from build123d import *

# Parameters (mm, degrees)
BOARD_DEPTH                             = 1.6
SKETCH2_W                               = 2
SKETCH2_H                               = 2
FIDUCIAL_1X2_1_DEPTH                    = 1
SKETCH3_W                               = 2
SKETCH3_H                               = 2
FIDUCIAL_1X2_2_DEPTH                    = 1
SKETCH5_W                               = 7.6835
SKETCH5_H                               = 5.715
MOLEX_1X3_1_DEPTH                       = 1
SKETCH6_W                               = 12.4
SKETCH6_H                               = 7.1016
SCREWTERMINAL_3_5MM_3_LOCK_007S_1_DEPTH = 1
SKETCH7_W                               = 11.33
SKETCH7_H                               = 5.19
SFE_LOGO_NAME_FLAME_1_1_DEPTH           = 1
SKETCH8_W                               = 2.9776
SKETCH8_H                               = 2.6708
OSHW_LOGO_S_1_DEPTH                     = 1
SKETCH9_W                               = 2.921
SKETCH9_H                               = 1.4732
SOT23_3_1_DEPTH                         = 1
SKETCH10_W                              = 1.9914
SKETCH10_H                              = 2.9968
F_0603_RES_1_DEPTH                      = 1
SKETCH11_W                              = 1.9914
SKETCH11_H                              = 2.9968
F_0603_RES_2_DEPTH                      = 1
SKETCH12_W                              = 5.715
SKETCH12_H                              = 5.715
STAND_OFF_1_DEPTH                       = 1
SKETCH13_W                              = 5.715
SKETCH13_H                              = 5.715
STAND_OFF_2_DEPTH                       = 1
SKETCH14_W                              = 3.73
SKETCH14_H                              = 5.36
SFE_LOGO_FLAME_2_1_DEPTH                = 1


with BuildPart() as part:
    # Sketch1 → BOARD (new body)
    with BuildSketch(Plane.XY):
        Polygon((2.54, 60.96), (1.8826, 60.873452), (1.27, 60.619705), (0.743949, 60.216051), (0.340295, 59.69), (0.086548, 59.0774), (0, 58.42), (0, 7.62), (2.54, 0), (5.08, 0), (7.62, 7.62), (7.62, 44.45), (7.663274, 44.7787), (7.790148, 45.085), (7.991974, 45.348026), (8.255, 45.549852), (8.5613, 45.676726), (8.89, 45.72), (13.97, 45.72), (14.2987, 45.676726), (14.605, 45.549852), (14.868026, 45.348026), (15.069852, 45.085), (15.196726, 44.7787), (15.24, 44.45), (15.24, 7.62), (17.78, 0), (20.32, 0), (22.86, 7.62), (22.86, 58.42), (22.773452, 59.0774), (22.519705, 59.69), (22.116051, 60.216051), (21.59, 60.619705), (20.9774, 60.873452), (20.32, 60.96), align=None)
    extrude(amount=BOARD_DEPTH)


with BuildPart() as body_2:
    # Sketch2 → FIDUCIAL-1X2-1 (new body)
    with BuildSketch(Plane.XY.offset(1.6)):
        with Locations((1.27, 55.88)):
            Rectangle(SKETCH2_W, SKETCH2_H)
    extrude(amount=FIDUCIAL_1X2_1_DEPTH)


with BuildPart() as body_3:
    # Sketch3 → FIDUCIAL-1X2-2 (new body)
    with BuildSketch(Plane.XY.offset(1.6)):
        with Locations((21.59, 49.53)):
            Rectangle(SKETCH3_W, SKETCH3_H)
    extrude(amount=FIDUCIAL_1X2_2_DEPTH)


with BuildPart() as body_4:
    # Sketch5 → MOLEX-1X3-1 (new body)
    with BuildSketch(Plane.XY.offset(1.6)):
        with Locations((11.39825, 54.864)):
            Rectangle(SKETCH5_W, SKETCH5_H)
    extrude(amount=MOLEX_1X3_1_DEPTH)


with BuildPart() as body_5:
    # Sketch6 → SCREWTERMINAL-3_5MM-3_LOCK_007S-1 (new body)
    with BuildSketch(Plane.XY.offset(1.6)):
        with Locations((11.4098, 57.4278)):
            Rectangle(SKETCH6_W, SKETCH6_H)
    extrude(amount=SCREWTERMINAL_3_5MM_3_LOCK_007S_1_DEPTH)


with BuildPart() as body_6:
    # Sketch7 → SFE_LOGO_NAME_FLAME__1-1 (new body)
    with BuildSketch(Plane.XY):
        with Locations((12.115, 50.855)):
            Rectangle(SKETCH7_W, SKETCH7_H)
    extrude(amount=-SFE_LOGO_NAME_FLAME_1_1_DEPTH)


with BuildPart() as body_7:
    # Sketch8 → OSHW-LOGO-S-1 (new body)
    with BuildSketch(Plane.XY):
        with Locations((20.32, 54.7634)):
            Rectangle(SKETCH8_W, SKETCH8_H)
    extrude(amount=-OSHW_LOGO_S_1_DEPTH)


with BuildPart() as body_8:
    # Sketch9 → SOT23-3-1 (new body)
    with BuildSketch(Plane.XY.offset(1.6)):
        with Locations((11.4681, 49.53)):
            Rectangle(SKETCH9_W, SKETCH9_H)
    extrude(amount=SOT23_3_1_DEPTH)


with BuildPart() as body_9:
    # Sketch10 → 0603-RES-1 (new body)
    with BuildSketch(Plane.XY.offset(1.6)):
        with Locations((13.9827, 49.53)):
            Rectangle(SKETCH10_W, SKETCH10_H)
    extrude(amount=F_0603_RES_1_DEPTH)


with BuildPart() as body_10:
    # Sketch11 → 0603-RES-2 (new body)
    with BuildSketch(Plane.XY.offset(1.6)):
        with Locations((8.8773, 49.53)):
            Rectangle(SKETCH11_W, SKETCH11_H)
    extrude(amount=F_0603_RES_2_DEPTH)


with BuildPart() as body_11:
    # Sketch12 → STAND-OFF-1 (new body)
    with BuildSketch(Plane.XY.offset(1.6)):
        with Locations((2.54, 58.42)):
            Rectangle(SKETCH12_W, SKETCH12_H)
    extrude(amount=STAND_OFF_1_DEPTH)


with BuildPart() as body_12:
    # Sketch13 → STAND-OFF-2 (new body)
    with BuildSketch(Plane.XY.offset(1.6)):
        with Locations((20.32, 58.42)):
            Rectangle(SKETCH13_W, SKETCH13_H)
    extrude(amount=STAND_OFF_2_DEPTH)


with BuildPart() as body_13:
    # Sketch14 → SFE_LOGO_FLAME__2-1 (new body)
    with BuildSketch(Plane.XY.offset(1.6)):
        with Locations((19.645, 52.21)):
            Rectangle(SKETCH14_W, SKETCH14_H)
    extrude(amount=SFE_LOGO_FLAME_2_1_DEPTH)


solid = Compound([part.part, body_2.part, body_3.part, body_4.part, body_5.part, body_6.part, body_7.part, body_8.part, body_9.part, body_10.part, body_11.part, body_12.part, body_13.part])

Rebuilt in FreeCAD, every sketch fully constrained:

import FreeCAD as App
import Part
import Sketcher
Q = App.Units.Quantity

doc = App.newDocument("Part")
params = doc.addObject("Spreadsheet::Sheet", "Params")
for row, (alias, value) in enumerate([
    ("sketch1_height", "2 in"),
    ("sketch1_height2", "2 in"),
    ("sketch1_width", "0.1 in"),
    ("sketch1_width2", "0.2 in"),
    ("sketch1_width3", "0.1 in"),
    ("pad1_length", "1.6 mm"),
    ("pad2_length", "1 mm"),
    ("pad3_length", "1 mm"),
    ("sketch4_height", "0.225 in"),
    ("pad4_length", "1 mm"),
    ("pad5_length", "1 mm"),
    ("pad6_length", "1 mm"),
    ("pad7_length", "1 mm"),
    ("sketch8_width", "0.115 in"),
    ("sketch8_height", "0.058 in"),
    ("pad8_length", "1 mm"),
    ("pad9_length", "1 mm"),
    ("pad10_length", "1 mm"),
    ("sketch11_width", "0.225 in"),
    ("pad11_length", "1 mm"),
    ("sketch12_width", "0.225 in"),
    ("pad12_length", "1 mm"),
    ("pad13_length", "1 mm"),
], start=1):
    params.set(f"A{row}", alias)
    params.set(f"B{row}", "=" + value)
    params.setAlias(f"B{row}", alias)

body = doc.addObject("PartDesign::Body", "Body")

sketch1 = body.newObject("Sketcher::SketchObject", "Sketch")
sketch1.AttachmentSupport = (doc.getObject("XY_Plane"), [""])
sketch1.MapMode = "FlatFace"
sketch1.addGeometry(Part.LineSegment(App.Vector(2.54, 60.96, 0), App.Vector(1.8826, 60.873452, 0)), False)
sketch1.addGeometry(Part.LineSegment(App.Vector(1.8826, 60.873452, 0), App.Vector(1.27, 60.619705, 0)), False)
sketch1.addGeometry(Part.LineSegment(App.Vector(1.27, 60.619705, 0), App.Vector(0.743949, 60.216051, 0)), False)
sketch1.addGeometry(Part.LineSegment(App.Vector(0.743949, 60.216051, 0), App.Vector(0.340295, 59.69, 0)), False)
sketch1.addGeometry(Part.LineSegment(App.Vector(0.340295, 59.69, 0), App.Vector(0.086548, 59.0774, 0)), False)
sketch1.addGeometry(Part.LineSegment(App.Vector(0.086548, 59.0774, 0), App.Vector(0, 58.42, 0)), False)
sketch1.addGeometry(Part.LineSegment(App.Vector(0, 58.42, 0), App.Vector(0, 7.62, 0)), False)
sketch1.addGeometry(Part.LineSegment(App.Vector(0, 7.62, 0), App.Vector(2.54, 0, 0)), False)
sketch1.addGeometry(Part.LineSegment(App.Vector(2.54, 0, 0), App.Vector(5.08, 0, 0)), False)
sketch1.addGeometry(Part.LineSegment(App.Vector(5.08, 0, 0), App.Vector(7.62, 7.62, 0)), False)
sketch1.addGeometry(Part.LineSegment(App.Vector(7.62, 7.62, 0), App.Vector(7.62, 44.45, 0)), False)
sketch1.addGeometry(Part.LineSegment(App.Vector(7.62, 44.45, 0), App.Vector(7.663274, 44.7787, 0)), False)
sketch1.addGeometry(Part.LineSegment(App.Vector(7.663274, 44.7787, 0), App.Vector(7.790148, 45.085, 0)), False)
sketch1.addGeometry(Part.LineSegment(App.Vector(7.790148, 45.085, 0), App.Vector(7.991974, 45.348026, 0)), False)
sketch1.addGeometry(Part.LineSegment(App.Vector(7.991974, 45.348026, 0), App.Vector(8.255, 45.549852, 0)), False)
sketch1.addGeometry(Part.LineSegment(App.Vector(8.255, 45.549852, 0), App.Vector(8.5613, 45.676726, 0)), False)
sketch1.addGeometry(Part.LineSegment(App.Vector(8.5613, 45.676726, 0), App.Vector(8.89, 45.72, 0)), False)
sketch1.addGeometry(Part.LineSegment(App.Vector(8.89, 45.72, 0), App.Vector(13.97, 45.72, 0)), False)
sketch1.addGeometry(Part.LineSegment(App.Vector(13.97, 45.72, 0), App.Vector(14.2987, 45.676726, 0)), False)
sketch1.addGeometry(Part.LineSegment(App.Vector(14.2987, 45.676726, 0), App.Vector(14.605, 45.549852, 0)), False)
sketch1.addGeometry(Part.LineSegment(App.Vector(14.605, 45.549852, 0), App.Vector(14.868026, 45.348026, 0)), False)
sketch1.addGeometry(Part.LineSegment(App.Vector(14.868026, 45.348026, 0), App.Vector(15.069852, 45.085, 0)), False)
sketch1.addGeometry(Part.LineSegment(App.Vector(15.069852, 45.085, 0), App.Vector(15.196726, 44.7787, 0)), False)
sketch1.addGeometry(Part.LineSegment(App.Vector(15.196726, 44.7787, 0), App.Vector(15.24, 44.45, 0)), False)
sketch1.addGeometry(Part.LineSegment(App.Vector(15.24, 44.45, 0), App.Vector(15.24, 7.62, 0)), False)
sketch1.addGeometry(Part.LineSegment(App.Vector(15.24, 7.62, 0), App.Vector(17.78, 0, 0)), False)
sketch1.addGeometry(Part.LineSegment(App.Vector(17.78, 0, 0), App.Vector(20.32, 0, 0)), False)
sketch1.addGeometry(Part.LineSegment(App.Vector(20.32, 0, 0), App.Vector(22.86, 7.62, 0)), False)
sketch1.addGeometry(Part.LineSegment(App.Vector(22.86, 7.62, 0), App.Vector(22.86, 58.42, 0)), False)
sketch1.addGeometry(Part.LineSegment(App.Vector(22.86, 58.42, 0), App.Vector(22.773452, 59.0774, 0)), False)
sketch1.addGeometry(Part.LineSegment(App.Vector(22.773452, 59.0774, 0), App.Vector(22.519705, 59.69, 0)), False)
sketch1.addGeometry(Part.LineSegment(App.Vector(22.519705, 59.69, 0), App.Vector(22.116051, 60.216051, 0)), False)
sketch1.addGeometry(Part.LineSegment(App.Vector(22.116051, 60.216051, 0), App.Vector(21.59, 60.619705, 0)), False)
sketch1.addGeometry(Part.LineSegment(App.Vector(21.59, 60.619705, 0), App.Vector(20.9774, 60.873452, 0)), False)
sketch1.addGeometry(Part.LineSegment(App.Vector(20.9774, 60.873452, 0), App.Vector(20.32, 60.96, 0)), False)
sketch1.addGeometry(Part.LineSegment(App.Vector(20.32, 60.96, 0), App.Vector(2.54, 60.96, 0)), False)
sketch1.addConstraint(Sketcher.Constraint("Coincident", 0, 2, 1, 1))
sketch1.addConstraint(Sketcher.Constraint("Coincident", 1, 2, 2, 1))
sketch1.addConstraint(Sketcher.Constraint("Coincident", 2, 2, 3, 1))
sketch1.addConstraint(Sketcher.Constraint("Coincident", 3, 2, 4, 1))
sketch1.addConstraint(Sketcher.Constraint("Coincident", 4, 2, 5, 1))
sketch1.addConstraint(Sketcher.Constraint("Coincident", 5, 2, 6, 1))
sketch1.addConstraint(Sketcher.Constraint("Coincident", 6, 2, 7, 1))
sketch1.addConstraint(Sketcher.Constraint("Coincident", 7, 2, 8, 1))
sketch1.addConstraint(Sketcher.Constraint("Coincident", 8, 2, 9, 1))
sketch1.addConstraint(Sketcher.Constraint("Coincident", 9, 2, 10, 1))
sketch1.addConstraint(Sketcher.Constraint("Coincident", 10, 2, 11, 1))
sketch1.addConstraint(Sketcher.Constraint("Coincident", 11, 2, 12, 1))
sketch1.addConstraint(Sketcher.Constraint("Coincident", 12, 2, 13, 1))
sketch1.addConstraint(Sketcher.Constraint("Coincident", 13, 2, 14, 1))
sketch1.addConstraint(Sketcher.Constraint("Coincident", 14, 2, 15, 1))
sketch1.addConstraint(Sketcher.Constraint("Coincident", 15, 2, 16, 1))
sketch1.addConstraint(Sketcher.Constraint("Coincident", 16, 2, 17, 1))
sketch1.addConstraint(Sketcher.Constraint("Coincident", 17, 2, 18, 1))
sketch1.addConstraint(Sketcher.Constraint("Coincident", 18, 2, 19, 1))
sketch1.addConstraint(Sketcher.Constraint("Coincident", 19, 2, 20, 1))
sketch1.addConstraint(Sketcher.Constraint("Coincident", 20, 2, 21, 1))
sketch1.addConstraint(Sketcher.Constraint("Coincident", 21, 2, 22, 1))
sketch1.addConstraint(Sketcher.Constraint("Coincident", 22, 2, 23, 1))
sketch1.addConstraint(Sketcher.Constraint("Coincident", 23, 2, 24, 1))
sketch1.addConstraint(Sketcher.Constraint("Coincident", 24, 2, 25, 1))
sketch1.addConstraint(Sketcher.Constraint("Coincident", 25, 2, 26, 1))
sketch1.addConstraint(Sketcher.Constraint("Coincident", 26, 2, 27, 1))
sketch1.addConstraint(Sketcher.Constraint("Coincident", 27, 2, 28, 1))
sketch1.addConstraint(Sketcher.Constraint("Coincident", 28, 2, 29, 1))
sketch1.addConstraint(Sketcher.Constraint("Coincident", 29, 2, 30, 1))
sketch1.addConstraint(Sketcher.Constraint("Coincident", 30, 2, 31, 1))
sketch1.addConstraint(Sketcher.Constraint("Coincident", 31, 2, 32, 1))
sketch1.addConstraint(Sketcher.Constraint("Coincident", 32, 2, 33, 1))
sketch1.addConstraint(Sketcher.Constraint("Coincident", 33, 2, 34, 1))
sketch1.addConstraint(Sketcher.Constraint("Coincident", 34, 2, 35, 1))
sketch1.addConstraint(Sketcher.Constraint("Coincident", 35, 2, 0, 1))
sketch1.addConstraint(Sketcher.Constraint("Vertical", 6))
sketch1.addConstraint(Sketcher.Constraint("Horizontal", 8))
sketch1.addConstraint(Sketcher.Constraint("Vertical", 10))
sketch1.addConstraint(Sketcher.Constraint("Horizontal", 17))
sketch1.addConstraint(Sketcher.Constraint("Vertical", 24))
sketch1.addConstraint(Sketcher.Constraint("Horizontal", 26))
sketch1.addConstraint(Sketcher.Constraint("Vertical", 28))
sketch1.addConstraint(Sketcher.Constraint("Horizontal", 35))
sketch1.addConstraint(Sketcher.Constraint("PointOnObject", 5, 2, -2))
sketch1.addConstraint(Sketcher.Constraint("PointOnObject", 7, 2, -1))
sketch1.addConstraint(Sketcher.Constraint("PointOnObject", 25, 2, -1))
sketch1.addConstraint(Sketcher.Constraint("DistanceY", 6, 2, 6, 1, Q("2 in")))
sketch1.addConstraint(Sketcher.Constraint("DistanceY", 28, 1, 28, 2, Q("2 in")))
sketch1.addConstraint(Sketcher.Constraint("DistanceX", 8, 1, 8, 2, Q("0.1 in")))
sketch1.addConstraint(Sketcher.Constraint("DistanceX", 17, 1, 17, 2, Q("0.2 in")))
sketch1.addConstraint(Sketcher.Constraint("DistanceX", 26, 1, 26, 2, Q("0.1 in")))
sketch1.addConstraint(Sketcher.Constraint("DistanceX", 35, 2, 35, 1, Q("0.7 in")))
sketch1.addConstraint(Sketcher.Constraint("DistanceY", 9, 2, 5, 2, Q("2 in")))
sketch1.addConstraint(Sketcher.Constraint("DistanceY", 10, 1, 10, 2, Q("1.45 in")))
sketch1.addConstraint(Sketcher.Constraint("DistanceY", 24, 2, 24, 1, Q("1.45 in")))
sketch1.addConstraint(Sketcher.Constraint("DistanceY", -1, 1, 5, 2, Q("2.3 in")))
sketch1.addConstraint(Sketcher.Constraint("DistanceX", -1, 1, 7, 2, Q("0.1 in")))
sketch1.addConstraint(Sketcher.Constraint("DistanceX", -1, 1, 9, 2, Q("0.3 in")))
sketch1.addConstraint(Sketcher.Constraint("DistanceY", -1, 1, 16, 2, Q("1.8 in")))
sketch1.addConstraint(Sketcher.Constraint("DistanceX", -1, 1, 23, 2, Q("0.6 in")))
sketch1.addConstraint(Sketcher.Constraint("DistanceY", -1, 1, 24, 2, Q("0.3 in")))
sketch1.addConstraint(Sketcher.Constraint("DistanceX", -1, 1, 25, 2, Q("0.7 in")))
sketch1.addConstraint(Sketcher.Constraint("DistanceX", -1, 1, 27, 2, Q("0.9 in")))
sketch1.addConstraint(Sketcher.Constraint("DistanceY", -1, 1, 27, 2, Q("0.3 in")))
sketch1.addConstraint(Sketcher.Constraint("DistanceX", -1, 1, 34, 2, Q("0.8 in")))
sketch1.addConstraint(Sketcher.Constraint("DistanceY", -1, 1, 34, 2, Q("2.4 in")))
sketch1.addConstraint(Sketcher.Constraint("DistanceY", 10, 2, 3, 2, Q("0.6 in")))
sketch1.addConstraint(Sketcher.Constraint("DistanceX", -1, 1, 1, 2, Q("0.05 in")))
sketch1.addConstraint(Sketcher.Constraint("DistanceX", -1, 1, 16, 2, Q("0.35 in")))
sketch1.addConstraint(Sketcher.Constraint("DistanceY", -1, 1, 30, 2, Q("2.35 in")))
sketch1.addConstraint(Sketcher.Constraint("DistanceX", -1, 1, 32, 2, Q("0.85 in")))
sketch1.addConstraint(Sketcher.Constraint("DistanceX", 14, 2, 19, 2, Q("0.25 in")))
sketch1.addConstraint(Sketcher.Constraint("DistanceY", -1, 1, 12, 2, Q("1.775 in")))
sketch1.addConstraint(Sketcher.Constraint("DistanceX", -1, 1, 14, 2, Q("0.325 in")))
sketch1.addConstraint(Sketcher.Constraint("DistanceY", -1, 1, 21, 2, Q("1.775 in")))
sketch1.addConstraint(Sketcher.Constraint("DistanceX", -1, 1, 0, 2, 1.8826))
sketch1.addConstraint(Sketcher.Constraint("DistanceY", -1, 1, 4, 2, 59.0774))
sketch1.addConstraint(Sketcher.Constraint("DistanceY", -1, 1, 11, 2, 44.7787))
sketch1.addConstraint(Sketcher.Constraint("DistanceX", -1, 1, 15, 2, 8.5613))
sketch1.addConstraint(Sketcher.Constraint("DistanceX", -1, 1, 18, 2, 14.2987))
sketch1.addConstraint(Sketcher.Constraint("DistanceY", -1, 1, 22, 2, 44.7787))
sketch1.addConstraint(Sketcher.Constraint("DistanceY", -1, 1, 29, 2, 59.0774))
sketch1.addConstraint(Sketcher.Constraint("DistanceX", -1, 1, 33, 2, 20.9774))
sketch1.addConstraint(Sketcher.Constraint("DistanceY", 2, 2, 0, 2, 0.657401))
sketch1.addConstraint(Sketcher.Constraint("DistanceX", 4, 2, 2, 2, 0.657401))
sketch1.addConstraint(Sketcher.Constraint("DistanceX", 4, 2, 12, 2, 7.7036))
sketch1.addConstraint(Sketcher.Constraint("DistanceX", 11, 2, 13, 2, 0.3287))
sketch1.addConstraint(Sketcher.Constraint("DistanceY", 13, 2, 15, 2, 0.3287))
sketch1.addConstraint(Sketcher.Constraint("DistanceY", 13, 2, 18, 2, 0.3287))
sketch1.addConstraint(Sketcher.Constraint("DistanceY", 20, 2, 18, 2, 0.3287))
sketch1.addConstraint(Sketcher.Constraint("DistanceX", 20, 2, 22, 2, 0.3287))
sketch1.addConstraint(Sketcher.Constraint("DistanceX", 21, 2, 29, 2, 7.7036))
sketch1.addConstraint(Sketcher.Constraint("DistanceX", 31, 2, 29, 2, 0.657401))
sketch1.addConstraint(Sketcher.Constraint("DistanceY", 19, 2, 31, 2, 14.666199))
sketch1.addConstraint(Sketcher.Constraint("DistanceY", 31, 2, 33, 2, 0.657401))
sketch1.addConstraint(Sketcher.Constraint("DistanceX", -1, 1, 2, 2, 0.743949))
sketch1.addConstraint(Sketcher.Constraint("DistanceY", -1, 1, 2, 2, 60.216051))
sketch1.addConstraint(Sketcher.Constraint("DistanceX", -1, 1, 21, 2, 15.069852))
sketch1.addConstraint(Sketcher.Constraint("DistanceY", -1, 1, 31, 2, 60.216051))
sketch1.addConstraint(Sketcher.Constraint("DistanceX", 3, 2, 11, 2, 7.322979))
sketch1.addConstraint(Sketcher.Constraint("DistanceY", 10, 2, 14, 2, 1.099852))
sketch1.addConstraint(Sketcher.Constraint("DistanceX", 20, 2, 30, 2, 7.651679))
sketch1.addConstraint(Sketcher.Constraint("Distance", 1, 0.663073))
sketch1.addConstraint(Sketcher.Constraint("Distance", 3, 0.663073))
sketch1.addConstraint(Sketcher.Constraint("Distance", 13, 0.331536))
sketch1.addConstraint(Sketcher.Constraint("Distance", 20, 0.331536))
sketch1.addConstraint(Sketcher.Constraint("Distance", 32, 0.663073))
sketch1.setExpression("Constraints[47]", "Params.sketch1_height")
sketch1.setExpression("Constraints[48]", "Params.sketch1_height2")
sketch1.setExpression("Constraints[49]", "Params.sketch1_width")
sketch1.setExpression("Constraints[50]", "Params.sketch1_width2")
sketch1.setExpression("Constraints[51]", "Params.sketch1_width3")
pad1 = body.newObject("PartDesign::Pad", "Pad")
pad1.Profile = sketch1
pad1.setExpression("Length", "Params.pad1_length")
body2 = doc.addObject("PartDesign::Body", "Body001")

sketch2 = body2.newObject("Sketcher::SketchObject", "Sketch001")
sketch2.AttachmentSupport = (doc.getObject("XY_Plane001"), [""])
sketch2.MapMode = "FlatFace"
sketch2.AttachmentOffset = App.Placement(App.Vector(0, 0, 1.6), App.Rotation())
sketch2.addGeometry(Part.LineSegment(App.Vector(0.3, 56.9, 0), App.Vector(0.3, 54.9, 0)), False)
sketch2.addGeometry(Part.LineSegment(App.Vector(0.3, 54.9, 0), App.Vector(2.3, 54.9, 0)), False)
sketch2.addGeometry(Part.LineSegment(App.Vector(2.3, 54.9, 0), App.Vector(2.3, 56.9, 0)), False)
sketch2.addGeometry(Part.LineSegment(App.Vector(2.3, 56.9, 0), App.Vector(0.3, 56.9, 0)), False)
sketch2.addConstraint(Sketcher.Constraint("Coincident", 0, 2, 1, 1))
sketch2.addConstraint(Sketcher.Constraint("Coincident", 1, 2, 2, 1))
sketch2.addConstraint(Sketcher.Constraint("Coincident", 2, 2, 3, 1))
sketch2.addConstraint(Sketcher.Constraint("Coincident", 3, 2, 0, 1))
sketch2.addConstraint(Sketcher.Constraint("Vertical", 0))
sketch2.addConstraint(Sketcher.Constraint("Horizontal", 1))
sketch2.addConstraint(Sketcher.Constraint("Vertical", 2))
sketch2.addConstraint(Sketcher.Constraint("Horizontal", 3))
sketch2.addConstraint(Sketcher.Constraint("Equal", 3, 0))
sketch2.addConstraint(Sketcher.Constraint("DistanceX", 1, 1, 1, 2, 2.0))
sketch2.addConstraint(Sketcher.Constraint("DistanceX", -1, 1, 0, 2, 0.27))
sketch2.addConstraint(Sketcher.Constraint("DistanceY", -1, 1, 0, 2, 54.88))
pad2 = body2.newObject("PartDesign::Pad", "Pad001")
pad2.Profile = sketch2
pad2.setExpression("Length", "Params.pad2_length")
body3 = doc.addObject("PartDesign::Body", "Body002")

sketch3 = body3.newObject("Sketcher::SketchObject", "Sketch002")
sketch3.AttachmentSupport = (doc.getObject("XY_Plane002"), [""])
sketch3.MapMode = "FlatFace"
sketch3.AttachmentOffset = App.Placement(App.Vector(0, 0, 1.6), App.Rotation())
sketch3.addGeometry(Part.LineSegment(App.Vector(20.6, 50.5, 0), App.Vector(20.6, 48.5, 0)), False)
sketch3.addGeometry(Part.LineSegment(App.Vector(20.6, 48.5, 0), App.Vector(22.6, 48.5, 0)), False)
sketch3.addGeometry(Part.LineSegment(App.Vector(22.6, 48.5, 0), App.Vector(22.6, 50.5, 0)), False)
sketch3.addGeometry(Part.LineSegment(App.Vector(22.6, 50.5, 0), App.Vector(20.6, 50.5, 0)), False)
sketch3.addConstraint(Sketcher.Constraint("Coincident", 0, 2, 1, 1))
sketch3.addConstraint(Sketcher.Constraint("Coincident", 1, 2, 2, 1))
sketch3.addConstraint(Sketcher.Constraint("Coincident", 2, 2, 3, 1))
sketch3.addConstraint(Sketcher.Constraint("Coincident", 3, 2, 0, 1))
sketch3.addConstraint(Sketcher.Constraint("Vertical", 0))
sketch3.addConstraint(Sketcher.Constraint("Horizontal", 1))
sketch3.addConstraint(Sketcher.Constraint("Vertical", 2))
sketch3.addConstraint(Sketcher.Constraint("Horizontal", 3))
sketch3.addConstraint(Sketcher.Constraint("Equal", 3, 0))
sketch3.addConstraint(Sketcher.Constraint("DistanceX", 1, 1, 1, 2, 2.0))
sketch3.addConstraint(Sketcher.Constraint("DistanceX", -1, 1, 0, 2, 20.59))
sketch3.addConstraint(Sketcher.Constraint("DistanceY", -1, 1, 0, 2, 48.53))
pad3 = body3.newObject("PartDesign::Pad", "Pad002")
pad3.Profile = sketch3
pad3.setExpression("Length", "Params.pad3_length")
body4 = doc.addObject("PartDesign::Body", "Body003")

sketch4 = body4.newObject("Sketcher::SketchObject", "Sketch003")
sketch4.AttachmentSupport = (doc.getObject("XY_Plane003"), [""])
sketch4.MapMode = "FlatFace"
sketch4.AttachmentOffset = App.Placement(App.Vector(0, 0, 1.6), App.Rotation())
sketch4.addGeometry(Part.LineSegment(App.Vector(8, 58, 0), App.Vector(8, 52, 0)), False)
sketch4.addGeometry(Part.LineSegment(App.Vector(8, 52, 0), App.Vector(15, 52, 0)), False)
sketch4.addGeometry(Part.LineSegment(App.Vector(15, 52, 0), App.Vector(15, 58, 0)), False)
sketch4.addGeometry(Part.LineSegment(App.Vector(15, 58, 0), App.Vector(8, 58, 0)), False)
sketch4.addConstraint(Sketcher.Constraint("Coincident", 0, 2, 1, 1))
sketch4.addConstraint(Sketcher.Constraint("Coincident", 1, 2, 2, 1))
sketch4.addConstraint(Sketcher.Constraint("Coincident", 2, 2, 3, 1))
sketch4.addConstraint(Sketcher.Constraint("Coincident", 3, 2, 0, 1))
sketch4.addConstraint(Sketcher.Constraint("Vertical", 0))
sketch4.addConstraint(Sketcher.Constraint("Horizontal", 1))
sketch4.addConstraint(Sketcher.Constraint("Vertical", 2))
sketch4.addConstraint(Sketcher.Constraint("Horizontal", 3))
sketch4.addConstraint(Sketcher.Constraint("DistanceX", -1, 1, 1, 2, Q("0.6 in")))
sketch4.addConstraint(Sketcher.Constraint("DistanceY", 0, 2, 0, 1, Q("0.225 in")))
sketch4.addConstraint(Sketcher.Constraint("DistanceX", 1, 1, 1, 2, Q("0.3025 in")))
sketch4.addConstraint(Sketcher.Constraint("DistanceY", -1, 1, 0, 2, Q("2.0475 in")))
sketch4.setExpression("Constraints[9]", "Params.sketch4_height")
pad4 = body4.newObject("PartDesign::Pad", "Pad003")
pad4.Profile = sketch4
pad4.setExpression("Length", "Params.pad4_length")
body5 = doc.addObject("PartDesign::Body", "Body004")

sketch5 = body5.newObject("Sketcher::SketchObject", "Sketch004")
sketch5.AttachmentSupport = (doc.getObject("XY_Plane004"), [""])
sketch5.MapMode = "FlatFace"
sketch5.AttachmentOffset = App.Placement(App.Vector(0, 0, 1.6), App.Rotation())
sketch5.addGeometry(Part.LineSegment(App.Vector(5, 61, 0), App.Vector(5, 54, 0)), False)
sketch5.addGeometry(Part.LineSegment(App.Vector(5, 54, 0), App.Vector(18, 54, 0)), False)
sketch5.addGeometry(Part.LineSegment(App.Vector(18, 54, 0), App.Vector(18, 61, 0)), False)
sketch5.addGeometry(Part.LineSegment(App.Vector(18, 61, 0), App.Vector(5, 61, 0)), False)
sketch5.addConstraint(Sketcher.Constraint("Coincident", 0, 2, 1, 1))
sketch5.addConstraint(Sketcher.Constraint("Coincident", 1, 2, 2, 1))
sketch5.addConstraint(Sketcher.Constraint("Coincident", 2, 2, 3, 1))
sketch5.addConstraint(Sketcher.Constraint("Coincident", 3, 2, 0, 1))
sketch5.addConstraint(Sketcher.Constraint("Vertical", 0))
sketch5.addConstraint(Sketcher.Constraint("Horizontal", 1))
sketch5.addConstraint(Sketcher.Constraint("Vertical", 2))
sketch5.addConstraint(Sketcher.Constraint("Horizontal", 3))
sketch5.addConstraint(Sketcher.Constraint("DistanceX", 1, 1, 1, 2, 12.4))
sketch5.addConstraint(Sketcher.Constraint("DistanceY", 0, 2, 0, 1, 7.1016))
sketch5.addConstraint(Sketcher.Constraint("DistanceX", -1, 1, 0, 2, 5.2098))
sketch5.addConstraint(Sketcher.Constraint("DistanceY", -1, 1, 0, 2, 53.877))
pad5 = body5.newObject("PartDesign::Pad", "Pad004")
pad5.Profile = sketch5
pad5.setExpression("Length", "Params.pad5_length")
body6 = doc.addObject("PartDesign::Body", "Body005")

sketch6 = body6.newObject("Sketcher::SketchObject", "Sketch005")
sketch6.AttachmentSupport = (doc.getObject("XY_Plane005"), [""])
sketch6.MapMode = "FlatFace"
sketch6.addGeometry(Part.LineSegment(App.Vector(6, 53, 0), App.Vector(6, 48, 0)), False)
sketch6.addGeometry(Part.LineSegment(App.Vector(6, 48, 0), App.Vector(18, 48, 0)), False)
sketch6.addGeometry(Part.LineSegment(App.Vector(18, 48, 0), App.Vector(18, 53, 0)), False)
sketch6.addGeometry(Part.LineSegment(App.Vector(18, 53, 0), App.Vector(6, 53, 0)), False)
sketch6.addConstraint(Sketcher.Constraint("Coincident", 0, 2, 1, 1))
sketch6.addConstraint(Sketcher.Constraint("Coincident", 1, 2, 2, 1))
sketch6.addConstraint(Sketcher.Constraint("Coincident", 2, 2, 3, 1))
sketch6.addConstraint(Sketcher.Constraint("Coincident", 3, 2, 0, 1))
sketch6.addConstraint(Sketcher.Constraint("Vertical", 0))
sketch6.addConstraint(Sketcher.Constraint("Horizontal", 1))
sketch6.addConstraint(Sketcher.Constraint("Vertical", 2))
sketch6.addConstraint(Sketcher.Constraint("Horizontal", 3))
sketch6.addConstraint(Sketcher.Constraint("DistanceY", -1, 1, 0, 2, Q("1.9 in")))
sketch6.addConstraint(Sketcher.Constraint("DistanceX", -1, 1, 1, 2, Q("0.7 in")))
sketch6.addConstraint(Sketcher.Constraint("DistanceX", 1, 1, 1, 2, 11.33))
sketch6.addConstraint(Sketcher.Constraint("DistanceY", 0, 2, 0, 1, 5.19))
pad6 = body6.newObject("PartDesign::Pad", "Pad005")
pad6.Profile = sketch6
pad6.setExpression("Length", "Params.pad6_length")
pad6.Reversed = True
body7 = doc.addObject("PartDesign::Body", "Body006")

sketch7 = body7.newObject("Sketcher::SketchObject", "Sketch006")
sketch7.AttachmentSupport = (doc.getObject("XY_Plane006"), [""])
sketch7.MapMode = "FlatFace"
sketch7.addGeometry(Part.LineSegment(App.Vector(18.8, 56.1, 0), App.Vector(18.8, 53.4, 0)), False)
sketch7.addGeometry(Part.LineSegment(App.Vector(18.8, 53.4, 0), App.Vector(21.8, 53.4, 0)), False)
sketch7.addGeometry(Part.LineSegment(App.Vector(21.8, 53.4, 0), App.Vector(21.8, 56.1, 0)), False)
sketch7.addGeometry(Part.LineSegment(App.Vector(21.8, 56.1, 0), App.Vector(18.8, 56.1, 0)), False)
sketch7.addConstraint(Sketcher.Constraint("Coincident", 0, 2, 1, 1))
sketch7.addConstraint(Sketcher.Constraint("Coincident", 1, 2, 2, 1))
sketch7.addConstraint(Sketcher.Constraint("Coincident", 2, 2, 3, 1))
sketch7.addConstraint(Sketcher.Constraint("Coincident", 3, 2, 0, 1))
sketch7.addConstraint(Sketcher.Constraint("Vertical", 0))
sketch7.addConstraint(Sketcher.Constraint("Horizontal", 1))
sketch7.addConstraint(Sketcher.Constraint("Vertical", 2))
sketch7.addConstraint(Sketcher.Constraint("Horizontal", 3))
sketch7.addConstraint(Sketcher.Constraint("DistanceX", 1, 1, 1, 2, 2.9776))
sketch7.addConstraint(Sketcher.Constraint("DistanceY", 0, 2, 0, 1, 2.6708))
sketch7.addConstraint(Sketcher.Constraint("DistanceX", -1, 1, 0, 2, 18.8312))
sketch7.addConstraint(Sketcher.Constraint("DistanceY", -1, 1, 0, 2, 53.428))
pad7 = body7.newObject("PartDesign::Pad", "Pad006")
pad7.Profile = sketch7
pad7.setExpression("Length", "Params.pad7_length")
pad7.Reversed = True
body8 = doc.addObject("PartDesign::Body", "Body007")

sketch8 = body8.newObject("Sketcher::SketchObject", "Sketch007")
sketch8.AttachmentSupport = (doc.getObject("XY_Plane007"), [""])
sketch8.MapMode = "FlatFace"
sketch8.AttachmentOffset = App.Placement(App.Vector(0, 0, 1.6), App.Rotation())
sketch8.addGeometry(Part.LineSegment(App.Vector(10, 50.3, 0), App.Vector(10, 48.8, 0)), False)
sketch8.addGeometry(Part.LineSegment(App.Vector(10, 48.8, 0), App.Vector(12.9, 48.8, 0)), False)
sketch8.addGeometry(Part.LineSegment(App.Vector(12.9, 48.8, 0), App.Vector(12.9, 50.3, 0)), False)
sketch8.addGeometry(Part.LineSegment(App.Vector(12.9, 50.3, 0), App.Vector(10, 50.3, 0)), False)
sketch8.addConstraint(Sketcher.Constraint("Coincident", 0, 2, 1, 1))
sketch8.addConstraint(Sketcher.Constraint("Coincident", 1, 2, 2, 1))
sketch8.addConstraint(Sketcher.Constraint("Coincident", 2, 2, 3, 1))
sketch8.addConstraint(Sketcher.Constraint("Coincident", 3, 2, 0, 1))
sketch8.addConstraint(Sketcher.Constraint("Vertical", 0))
sketch8.addConstraint(Sketcher.Constraint("Horizontal", 1))
sketch8.addConstraint(Sketcher.Constraint("Vertical", 2))
sketch8.addConstraint(Sketcher.Constraint("Horizontal", 3))
sketch8.addConstraint(Sketcher.Constraint("DistanceX", 1, 1, 1, 2, Q("0.115 in")))
sketch8.addConstraint(Sketcher.Constraint("DistanceY", 0, 2, 0, 1, Q("0.058 in")))
sketch8.addConstraint(Sketcher.Constraint("DistanceX", -1, 1, 0, 2, Q("0.394 in")))
sketch8.addConstraint(Sketcher.Constraint("DistanceY", -1, 1, 0, 2, Q("1.921 in")))
sketch8.setExpression("Constraints[8]", "Params.sketch8_width")
sketch8.setExpression("Constraints[9]", "Params.sketch8_height")
pad8 = body8.newObject("PartDesign::Pad", "Pad007")
pad8.Profile = sketch8
pad8.setExpression("Length", "Params.pad8_length")
body9 = doc.addObject("PartDesign::Body", "Body008")

sketch9 = body9.newObject("Sketcher::SketchObject", "Sketch008")
sketch9.AttachmentSupport = (doc.getObject("XY_Plane008"), [""])
sketch9.MapMode = "FlatFace"
sketch9.AttachmentOffset = App.Placement(App.Vector(0, 0, 1.6), App.Rotation())
sketch9.addGeometry(Part.LineSegment(App.Vector(13, 51, 0), App.Vector(13, 48, 0)), False)
sketch9.addGeometry(Part.LineSegment(App.Vector(13, 48, 0), App.Vector(15, 48, 0)), False)
sketch9.addGeometry(Part.LineSegment(App.Vector(15, 48, 0), App.Vector(15, 51, 0)), False)
sketch9.addGeometry(Part.LineSegment(App.Vector(15, 51, 0), App.Vector(13, 51, 0)), False)
sketch9.addConstraint(Sketcher.Constraint("Coincident", 0, 2, 1, 1))
sketch9.addConstraint(Sketcher.Constraint("Coincident", 1, 2, 2, 1))
sketch9.addConstraint(Sketcher.Constraint("Coincident", 2, 2, 3, 1))
sketch9.addConstraint(Sketcher.Constraint("Coincident", 3, 2, 0, 1))
sketch9.addConstraint(Sketcher.Constraint("Vertical", 0))
sketch9.addConstraint(Sketcher.Constraint("Horizontal", 1))
sketch9.addConstraint(Sketcher.Constraint("Vertical", 2))
sketch9.addConstraint(Sketcher.Constraint("Horizontal", 3))
sketch9.addConstraint(Sketcher.Constraint("DistanceX", 1, 1, 1, 2, 1.9914))
sketch9.addConstraint(Sketcher.Constraint("DistanceY", 0, 2, 0, 1, 2.9968))
sketch9.addConstraint(Sketcher.Constraint("DistanceX", -1, 1, 0, 2, 12.987))
sketch9.addConstraint(Sketcher.Constraint("DistanceY", -1, 1, 0, 2, 48.0316))
pad9 = body9.newObject("PartDesign::Pad", "Pad008")
pad9.Profile = sketch9
pad9.setExpression("Length", "Params.pad9_length")
body10 = doc.addObject("PartDesign::Body", "Body009")

sketch10 = body10.newObject("Sketcher::SketchObject", "Sketch009")
sketch10.AttachmentSupport = (doc.getObject("XY_Plane009"), [""])
sketch10.MapMode = "FlatFace"
sketch10.AttachmentOffset = App.Placement(App.Vector(0, 0, 1.6), App.Rotation())
sketch10.addGeometry(Part.LineSegment(App.Vector(7.9, 51, 0), App.Vector(7.9, 48, 0)), False)
sketch10.addGeometry(Part.LineSegment(App.Vector(7.9, 48, 0), App.Vector(9.9, 48, 0)), False)
sketch10.addGeometry(Part.LineSegment(App.Vector(9.9, 48, 0), App.Vector(9.9, 51, 0)), False)
sketch10.addGeometry(Part.LineSegment(App.Vector(9.9, 51, 0), App.Vector(7.9, 51, 0)), False)
sketch10.addConstraint(Sketcher.Constraint("Coincident", 0, 2, 1, 1))
sketch10.addConstraint(Sketcher.Constraint("Coincident", 1, 2, 2, 1))
sketch10.addConstraint(Sketcher.Constraint("Coincident", 2, 2, 3, 1))
sketch10.addConstraint(Sketcher.Constraint("Coincident", 3, 2, 0, 1))
sketch10.addConstraint(Sketcher.Constraint("Vertical", 0))
sketch10.addConstraint(Sketcher.Constraint("Horizontal", 1))
sketch10.addConstraint(Sketcher.Constraint("Vertical", 2))
sketch10.addConstraint(Sketcher.Constraint("Horizontal", 3))
sketch10.addConstraint(Sketcher.Constraint("DistanceX", 1, 1, 1, 2, 1.9914))
sketch10.addConstraint(Sketcher.Constraint("DistanceY", 0, 2, 0, 1, 2.9968))
sketch10.addConstraint(Sketcher.Constraint("DistanceX", -1, 1, 0, 2, 7.8816))
sketch10.addConstraint(Sketcher.Constraint("DistanceY", -1, 1, 0, 2, 48.0316))
pad10 = body10.newObject("PartDesign::Pad", "Pad009")
pad10.Profile = sketch10
pad10.setExpression("Length", "Params.pad10_length")
body11 = doc.addObject("PartDesign::Body", "Body010")

sketch11 = body11.newObject("Sketcher::SketchObject", "Sketch010")
sketch11.AttachmentSupport = (doc.getObject("XY_Plane010"), [""])
sketch11.MapMode = "FlatFace"
sketch11.AttachmentOffset = App.Placement(App.Vector(0, 0, 1.6), App.Rotation())
sketch11.addGeometry(Part.LineSegment(App.Vector(0, 61, 0), App.Vector(0, 56, 0)), False)
sketch11.addGeometry(Part.LineSegment(App.Vector(0, 56, 0), App.Vector(5, 56, 0)), False)
sketch11.addGeometry(Part.LineSegment(App.Vector(5, 56, 0), App.Vector(5, 61, 0)), False)
sketch11.addGeometry(Part.LineSegment(App.Vector(5, 61, 0), App.Vector(0, 61, 0)), False)
sketch11.addConstraint(Sketcher.Constraint("Coincident", 0, 2, 1, 1))
sketch11.addConstraint(Sketcher.Constraint("Coincident", 1, 2, 2, 1))
sketch11.addConstraint(Sketcher.Constraint("Coincident", 2, 2, 3, 1))
sketch11.addConstraint(Sketcher.Constraint("Coincident", 3, 2, 0, 1))
sketch11.addConstraint(Sketcher.Constraint("Vertical", 0))
sketch11.addConstraint(Sketcher.Constraint("Horizontal", 1))
sketch11.addConstraint(Sketcher.Constraint("Vertical", 2))
sketch11.addConstraint(Sketcher.Constraint("Horizontal", 3))
sketch11.addConstraint(Sketcher.Constraint("Equal", 3, 0))
sketch11.addConstraint(Sketcher.Constraint("DistanceX", 1, 1, 1, 2, Q("0.225 in")))
sketch11.addConstraint(Sketcher.Constraint("DistanceY", -1, 1, 0, 2, Q("2.1875 in")))
sketch11.addConstraint(Sketcher.Constraint("DistanceX", 0, 2, -1, 1, Q("0.0125 in")))
sketch11.setExpression("Constraints[9]", "Params.sketch11_width")
pad11 = body11.newObject("PartDesign::Pad", "Pad010")
pad11.Profile = sketch11
pad11.setExpression("Length", "Params.pad11_length")
body12 = doc.addObject("PartDesign::Body", "Body011")

sketch12 = body12.newObject("Sketcher::SketchObject", "Sketch011")
sketch12.AttachmentSupport = (doc.getObject("XY_Plane011"), [""])
sketch12.MapMode = "FlatFace"
sketch12.AttachmentOffset = App.Placement(App.Vector(0, 0, 1.6), App.Rotation())
sketch12.addGeometry(Part.LineSegment(App.Vector(17, 61, 0), App.Vector(17, 56, 0)), False)
sketch12.addGeometry(Part.LineSegment(App.Vector(17, 56, 0), App.Vector(23, 56, 0)), False)
sketch12.addGeometry(Part.LineSegment(App.Vector(23, 56, 0), App.Vector(23, 61, 0)), False)
sketch12.addGeometry(Part.LineSegment(App.Vector(23, 61, 0), App.Vector(17, 61, 0)), False)
sketch12.addConstraint(Sketcher.Constraint("Coincident", 0, 2, 1, 1))
sketch12.addConstraint(Sketcher.Constraint("Coincident", 1, 2, 2, 1))
sketch12.addConstraint(Sketcher.Constraint("Coincident", 2, 2, 3, 1))
sketch12.addConstraint(Sketcher.Constraint("Coincident", 3, 2, 0, 1))
sketch12.addConstraint(Sketcher.Constraint("Vertical", 0))
sketch12.addConstraint(Sketcher.Constraint("Horizontal", 1))
sketch12.addConstraint(Sketcher.Constraint("Vertical", 2))
sketch12.addConstraint(Sketcher.Constraint("Horizontal", 3))
sketch12.addConstraint(Sketcher.Constraint("Equal", 3, 0))
sketch12.addConstraint(Sketcher.Constraint("DistanceX", 1, 1, 1, 2, Q("0.225 in")))
sketch12.addConstraint(Sketcher.Constraint("DistanceX", -1, 1, 0, 2, Q("0.6875 in")))
sketch12.addConstraint(Sketcher.Constraint("DistanceY", -1, 1, 0, 2, Q("2.1875 in")))
sketch12.setExpression("Constraints[9]", "Params.sketch12_width")
pad12 = body12.newObject("PartDesign::Pad", "Pad011")
pad12.Profile = sketch12
pad12.setExpression("Length", "Params.pad12_length")
body13 = doc.addObject("PartDesign::Body", "Body012")

sketch13 = body13.newObject("Sketcher::SketchObject", "Sketch012")
sketch13.AttachmentSupport = (doc.getObject("XY_Plane012"), [""])
sketch13.MapMode = "FlatFace"
sketch13.AttachmentOffset = App.Placement(App.Vector(0, 0, 1.6), App.Rotation())
sketch13.addGeometry(Part.LineSegment(App.Vector(17.8, 54.9, 0), App.Vector(17.8, 49.5, 0)), False)
sketch13.addGeometry(Part.LineSegment(App.Vector(17.8, 49.5, 0), App.Vector(21.5, 49.5, 0)), False)
sketch13.addGeometry(Part.LineSegment(App.Vector(21.5, 49.5, 0), App.Vector(21.5, 54.9, 0)), False)
sketch13.addGeometry(Part.LineSegment(App.Vector(21.5, 54.9, 0), App.Vector(17.8, 54.9, 0)), False)
sketch13.addConstraint(Sketcher.Constraint("Coincident", 0, 2, 1, 1))
sketch13.addConstraint(Sketcher.Constraint("Coincident", 1, 2, 2, 1))
sketch13.addConstraint(Sketcher.Constraint("Coincident", 2, 2, 3, 1))
sketch13.addConstraint(Sketcher.Constraint("Coincident", 3, 2, 0, 1))
sketch13.addConstraint(Sketcher.Constraint("Vertical", 0))
sketch13.addConstraint(Sketcher.Constraint("Horizontal", 1))
sketch13.addConstraint(Sketcher.Constraint("Vertical", 2))
sketch13.addConstraint(Sketcher.Constraint("Horizontal", 3))
sketch13.addConstraint(Sketcher.Constraint("DistanceX", -1, 1, 0, 2, Q("0.7 in")))
sketch13.addConstraint(Sketcher.Constraint("DistanceY", -1, 1, 0, 2, Q("1.95 in")))
sketch13.addConstraint(Sketcher.Constraint("DistanceX", 1, 1, 1, 2, 3.73))
sketch13.addConstraint(Sketcher.Constraint("DistanceY", 0, 2, 0, 1, 5.36))
pad13 = body13.newObject("PartDesign::Pad", "Pad012")
pad13.Profile = sketch13
pad13.setExpression("Length", "Params.pad13_length")

doc.recompute()
